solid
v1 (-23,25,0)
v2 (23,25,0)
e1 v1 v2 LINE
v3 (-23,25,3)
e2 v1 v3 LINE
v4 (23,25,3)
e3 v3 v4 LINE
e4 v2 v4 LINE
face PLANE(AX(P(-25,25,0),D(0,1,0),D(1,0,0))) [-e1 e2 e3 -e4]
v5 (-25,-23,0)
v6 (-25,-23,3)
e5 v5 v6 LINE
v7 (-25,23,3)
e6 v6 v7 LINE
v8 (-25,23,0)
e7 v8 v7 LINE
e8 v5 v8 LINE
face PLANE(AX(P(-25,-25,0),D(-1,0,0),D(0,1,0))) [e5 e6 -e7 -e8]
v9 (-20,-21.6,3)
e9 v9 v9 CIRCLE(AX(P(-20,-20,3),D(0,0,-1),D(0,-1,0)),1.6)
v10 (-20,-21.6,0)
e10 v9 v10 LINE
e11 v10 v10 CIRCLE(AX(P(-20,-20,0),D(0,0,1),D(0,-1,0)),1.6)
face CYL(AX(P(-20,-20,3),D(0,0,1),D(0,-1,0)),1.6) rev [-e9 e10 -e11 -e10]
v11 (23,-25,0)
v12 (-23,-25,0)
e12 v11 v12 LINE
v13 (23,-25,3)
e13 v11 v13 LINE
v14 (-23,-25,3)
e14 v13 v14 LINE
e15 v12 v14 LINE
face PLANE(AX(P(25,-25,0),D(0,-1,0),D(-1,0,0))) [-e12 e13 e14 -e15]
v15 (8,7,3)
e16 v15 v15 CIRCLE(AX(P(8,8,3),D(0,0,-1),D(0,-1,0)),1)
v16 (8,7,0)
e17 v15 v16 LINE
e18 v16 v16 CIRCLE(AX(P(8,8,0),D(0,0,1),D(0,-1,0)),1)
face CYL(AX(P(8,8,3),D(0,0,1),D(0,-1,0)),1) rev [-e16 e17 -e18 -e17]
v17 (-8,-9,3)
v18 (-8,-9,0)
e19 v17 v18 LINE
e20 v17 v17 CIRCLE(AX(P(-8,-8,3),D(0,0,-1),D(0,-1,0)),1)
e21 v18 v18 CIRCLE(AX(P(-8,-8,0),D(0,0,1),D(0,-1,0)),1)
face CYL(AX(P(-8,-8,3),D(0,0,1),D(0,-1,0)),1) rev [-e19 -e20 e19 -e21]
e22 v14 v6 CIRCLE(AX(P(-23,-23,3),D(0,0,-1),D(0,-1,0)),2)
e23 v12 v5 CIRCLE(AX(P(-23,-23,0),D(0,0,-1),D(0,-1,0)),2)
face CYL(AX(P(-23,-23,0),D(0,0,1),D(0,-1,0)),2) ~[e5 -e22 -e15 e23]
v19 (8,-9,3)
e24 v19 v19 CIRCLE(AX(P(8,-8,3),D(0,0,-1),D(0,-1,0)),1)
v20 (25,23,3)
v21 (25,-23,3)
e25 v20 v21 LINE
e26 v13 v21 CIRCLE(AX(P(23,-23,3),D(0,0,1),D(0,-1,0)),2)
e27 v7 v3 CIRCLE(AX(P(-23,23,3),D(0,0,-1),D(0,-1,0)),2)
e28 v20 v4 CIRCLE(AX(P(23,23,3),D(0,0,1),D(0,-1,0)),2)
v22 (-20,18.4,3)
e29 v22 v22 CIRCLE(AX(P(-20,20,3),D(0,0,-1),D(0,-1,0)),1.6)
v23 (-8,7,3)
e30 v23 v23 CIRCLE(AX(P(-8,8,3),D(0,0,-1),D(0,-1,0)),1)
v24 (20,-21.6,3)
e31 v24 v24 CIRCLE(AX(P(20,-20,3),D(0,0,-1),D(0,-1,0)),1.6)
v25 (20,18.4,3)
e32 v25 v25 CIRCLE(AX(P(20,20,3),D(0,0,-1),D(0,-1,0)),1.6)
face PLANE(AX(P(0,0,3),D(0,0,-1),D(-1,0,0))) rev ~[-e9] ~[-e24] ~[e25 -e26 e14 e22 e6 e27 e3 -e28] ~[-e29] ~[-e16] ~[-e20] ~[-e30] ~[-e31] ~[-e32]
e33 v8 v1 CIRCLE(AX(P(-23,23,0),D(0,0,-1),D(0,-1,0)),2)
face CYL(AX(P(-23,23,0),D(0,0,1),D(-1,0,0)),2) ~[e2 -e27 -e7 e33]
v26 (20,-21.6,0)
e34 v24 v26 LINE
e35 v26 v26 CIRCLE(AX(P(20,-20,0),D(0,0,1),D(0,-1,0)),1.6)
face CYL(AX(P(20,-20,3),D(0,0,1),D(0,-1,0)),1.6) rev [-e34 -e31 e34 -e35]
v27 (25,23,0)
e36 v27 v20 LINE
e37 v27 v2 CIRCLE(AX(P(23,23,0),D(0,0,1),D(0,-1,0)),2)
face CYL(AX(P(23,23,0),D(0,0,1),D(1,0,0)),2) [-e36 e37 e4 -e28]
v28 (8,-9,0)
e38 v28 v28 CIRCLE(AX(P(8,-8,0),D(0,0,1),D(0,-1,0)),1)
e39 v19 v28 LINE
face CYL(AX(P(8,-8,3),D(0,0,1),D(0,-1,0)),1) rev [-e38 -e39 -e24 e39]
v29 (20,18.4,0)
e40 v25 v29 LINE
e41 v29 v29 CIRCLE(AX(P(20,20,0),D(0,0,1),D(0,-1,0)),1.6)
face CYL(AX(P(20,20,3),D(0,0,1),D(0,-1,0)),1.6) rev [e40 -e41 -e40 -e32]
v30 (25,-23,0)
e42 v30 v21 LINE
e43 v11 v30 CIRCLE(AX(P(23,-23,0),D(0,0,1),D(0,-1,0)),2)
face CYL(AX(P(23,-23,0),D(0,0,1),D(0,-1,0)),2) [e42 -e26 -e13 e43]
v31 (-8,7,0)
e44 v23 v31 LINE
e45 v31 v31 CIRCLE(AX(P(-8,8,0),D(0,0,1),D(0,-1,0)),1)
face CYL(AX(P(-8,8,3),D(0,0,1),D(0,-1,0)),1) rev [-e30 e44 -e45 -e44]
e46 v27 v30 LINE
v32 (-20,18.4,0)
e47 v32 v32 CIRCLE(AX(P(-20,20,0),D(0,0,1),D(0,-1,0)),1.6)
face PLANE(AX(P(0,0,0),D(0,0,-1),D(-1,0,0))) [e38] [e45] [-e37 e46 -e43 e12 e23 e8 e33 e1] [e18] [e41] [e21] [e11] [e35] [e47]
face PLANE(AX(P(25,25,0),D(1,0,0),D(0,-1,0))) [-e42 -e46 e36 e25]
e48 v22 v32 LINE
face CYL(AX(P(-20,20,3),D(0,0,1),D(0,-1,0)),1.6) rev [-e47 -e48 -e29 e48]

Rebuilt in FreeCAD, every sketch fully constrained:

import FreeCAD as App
import Part
import Sketcher


def edges_at(feature, points):
    """Names of the edges that pass closest to the given points."""
    edges = feature.Shape.Edges
    near = lambda p: min(range(len(edges)), key=lambda i: edges[i].distToShape(Part.Vertex(*p))[0])
    return sorted({f"Edge{near(p) + 1}" for p in points})

doc = App.newDocument("Part")
body = doc.addObject("PartDesign::Body", "Body")

sketch1 = doc.addObject("Sketcher::SketchObject", "Sketch")
body.addObject(sketch1)
sketch1.AttachmentSupport = (doc.XY_Plane, [""])
sketch1.MapMode = "FlatFace"
sketch1.addGeometry([
    Part.LineSegment(App.Vector(-25, -25, 0), App.Vector(25, -25, 0)),
    Part.LineSegment(App.Vector(25, -25, 0), App.Vector(25, 25, 0)),
    Part.LineSegment(App.Vector(25, 25, 0), App.Vector(-25, 25, 0)),
    Part.LineSegment(App.Vector(-25, 25, 0), App.Vector(-25, -25, 0)),
], False)
sketch1.addConstraint([
    Sketcher.Constraint("Coincident", 0, 2, 1, 1),
    Sketcher.Constraint("Coincident", 1, 2, 2, 1),
    Sketcher.Constraint("Coincident", 2, 2, 3, 1),
    Sketcher.Constraint("Coincident", 3, 2, 0, 1),
    Sketcher.Constraint("Horizontal", 0),
    Sketcher.Constraint("Vertical", 1),
    Sketcher.Constraint("Horizontal", 2),
    Sketcher.Constraint("Vertical", 3),
    Sketcher.Constraint("Symmetric", 0, 2, 2, 2, -1, 1),
    Sketcher.Constraint("Equal", 2, 1),
    Sketcher.Constraint("DistanceX", -1, 1, 0, 2, 25.0),
])
pad1 = doc.addObject("PartDesign::Pad", "Pad")
body.addObject(pad1)
pad1.Profile = sketch1
pad1.Length = 3

sketch2 = doc.addObject("Sketcher::SketchObject", "Sketch001")
body.addObject(sketch2)
sketch2.AttachmentSupport = (doc.XY_Plane, [""])
sketch2.MapMode = "FlatFace"
sketch2.AttachmentOffset = App.Placement(App.Vector(0, 0, 3), App.Rotation())
sketch2.addGeometry(Part.Circle(App.Vector(-8, 8, 0), App.Vector(0, 0, 1), 1), False)
sketch2.addConstraint([
    Sketcher.Constraint("Diameter", 0, 2.0),
    Sketcher.Constraint("DistanceX", 0, 3, -1, 1, 8.0),
    Sketcher.Constraint("DistanceY", -1, 1, 0, 3, 8.0),
])
doc.recompute()
hole = doc.addObject("PartDesign::Hole", "Hole")
body.addObject(hole)
hole.Profile = sketch2
hole.ThreadType = "None"
hole.Diameter = 2
hole.DepthType = "ThroughAll"

sketch3 = doc.addObject("Sketcher::SketchObject", "Sketch002")
body.addObject(sketch3)
sketch3.AttachmentSupport = (doc.XY_Plane, [""])
sketch3.MapMode = "FlatFace"
sketch3.AttachmentOffset = App.Placement(App.Vector(0, 0, 3), App.Rotation())
sketch3.addGeometry(Part.Circle(App.Vector(-8, -8, 0), App.Vector(0, 0, 1), 1), False)
sketch3.addConstraint([
    Sketcher.Constraint("Diameter", 0, 2.0),
    Sketcher.Constraint("DistanceX", 0, 3, -1, 1, 8.0),
    Sketcher.Constraint("DistanceY", 0, 3, -1, 1, 8.0),
])
doc.recompute()
hole2 = doc.addObject("PartDesign::Hole", "Hole001")
body.addObject(hole2)
hole2.Profile = sketch3
hole2.ThreadType = "None"
hole2.Diameter = 2
hole2.DepthType = "ThroughAll"

sketch4 = doc.addObject("Sketcher::SketchObject", "Sketch003")
body.addObject(sketch4)
sketch4.AttachmentSupport = (doc.XY_Plane, [""])
sketch4.MapMode = "FlatFace"
sketch4.AttachmentOffset = App.Placement(App.Vector(0, 0, 3), App.Rotation())
sketch4.addGeometry(Part.Circle(App.Vector(8, -8, 0), App.Vector(0, 0, 1), 1), False)
sketch4.addConstraint([
    Sketcher.Constraint("Diameter", 0, 2.0),
    Sketcher.Constraint("DistanceX", -1, 1, 0, 3, 8.0),
    Sketcher.Constraint("DistanceY", 0, 3, -1, 1, 8.0),
])
doc.recompute()
hole3 = doc.addObject("PartDesign::Hole", "Hole002")
body.addObject(hole3)
hole3.Profile = sketch4
hole3.ThreadType = "None"
hole3.Diameter = 2
hole3.DepthType = "ThroughAll"

sketch5 = doc.addObject("Sketcher::SketchObject", "Sketch004")
body.addObject(sketch5)
sketch5.AttachmentSupport = (doc.XY_Plane, [""])
sketch5.MapMode = "FlatFace"
sketch5.AttachmentOffset = App.Placement(App.Vector(0, 0, 3), App.Rotation())
sketch5.addGeometry(Part.Circle(App.Vector(8, 8, 0), App.Vector(0, 0, 1), 1), False)
sketch5.addConstraint([
    Sketcher.Constraint("Diameter", 0, 2.0),
    Sketcher.Constraint("DistanceX", -1, 1, 0, 3, 8.0),
    Sketcher.Constraint("DistanceY", -1, 1, 0, 3, 8.0),
])
doc.recompute()
hole4 = doc.addObject("PartDesign::Hole", "Hole003")
body.addObject(hole4)
hole4.Profile = sketch5
hole4.ThreadType = "None"
hole4.Diameter = 2
hole4.DepthType = "ThroughAll"

sketch6 = doc.addObject("Sketcher::SketchObject", "Sketch005")
body.addObject(sketch6)
sketch6.AttachmentSupport = (doc.XY_Plane, [""])
sketch6.MapMode = "FlatFace"
sketch6.AttachmentOffset = App.Placement(App.Vector(0, 0, 3), App.Rotation())
sketch6.addGeometry(Part.Circle(App.Vector(20, 20, 0), App.Vector(0, 0, 1), 1.6), False)
sketch6.addConstraint([
    Sketcher.Constraint("Diameter", 0, 3.2),
    Sketcher.Constraint("DistanceX", -1, 1, 0, 3, 20.0),
    Sketcher.Constraint("DistanceY", -1, 1, 0, 3, 20.0),
])
doc.recompute()
hole5 = doc.addObject("PartDesign::Hole", "Hole004")
body.addObject(hole5)
hole5.Profile = sketch6
hole5.ThreadType = "None"
hole5.Diameter = 3.2
hole5.DepthType = "ThroughAll"

sketch7 = doc.addObject("Sketcher::SketchObject", "Sketch006")
body.addObject(sketch7)
sketch7.AttachmentSupport = (doc.XY_Plane, [""])
sketch7.MapMode = "FlatFace"
sketch7.AttachmentOffset = App.Placement(App.Vector(0, 0, 3), App.Rotation())
sketch7.addGeometry(Part.Circle(App.Vector(20, -20, 0), App.Vector(0, 0, 1), 1.6), False)
sketch7.addConstraint([
    Sketcher.Constraint("Diameter", 0, 3.2),
    Sketcher.Constraint("DistanceX", -1, 1, 0, 3, 20.0),
    Sketcher.Constraint("DistanceY", 0, 3, -1, 1, 20.0),
])
doc.recompute()
hole6 = doc.addObject("PartDesign::Hole", "Hole005")
body.addObject(hole6)
hole6.Profile = sketch7
hole6.ThreadType = "None"
hole6.Diameter = 3.2
hole6.DepthType = "ThroughAll"

sketch8 = doc.addObject("Sketcher::SketchObject", "Sketch007")
body.addObject(sketch8)
sketch8.AttachmentSupport = (doc.XY_Plane, [""])
sketch8.MapMode = "FlatFace"
sketch8.AttachmentOffset = App.Placement(App.Vector(0, 0, 3), App.Rotation())
sketch8.addGeometry(Part.Circle(App.Vector(-20, -20, 0), App.Vector(0, 0, 1), 1.6), False)
sketch8.addConstraint([
    Sketcher.Constraint("Diameter", 0, 3.2),
    Sketcher.Constraint("DistanceX", 0, 3, -1, 1, 20.0),
    Sketcher.Constraint("DistanceY", 0, 3, -1, 1, 20.0),
])
doc.recompute()
hole7 = doc.addObject("PartDesign::Hole", "Hole006")
body.addObject(hole7)
hole7.Profile = sketch8
hole7.ThreadType = "None"
hole7.Diameter = 3.2
hole7.DepthType = "ThroughAll"

sketch9 = doc.addObject("Sketcher::SketchObject", "Sketch008")
body.addObject(sketch9)
sketch9.AttachmentSupport = (doc.XY_Plane, [""])
sketch9.MapMode = "FlatFace"
sketch9.AttachmentOffset = App.Placement(App.Vector(0, 0, 3), App.Rotation())
sketch9.addGeometry(Part.Circle(App.Vector(-20, 20, 0), App.Vector(0, 0, 1), 1.6), False)
sketch9.addConstraint([
    Sketcher.Constraint("Diameter", 0, 3.2),
    Sketcher.Constraint("DistanceX", 0, 3, -1, 1, 20.0),
    Sketcher.Constraint("DistanceY", -1, 1, 0, 3, 20.0),
])
doc.recompute()
hole8 = doc.addObject("PartDesign::Hole", "Hole007")
body.addObject(hole8)
hole8.Profile = sketch9
hole8.ThreadType = "None"
hole8.Diameter = 3.2
hole8.DepthType = "ThroughAll"
doc.recompute()

fillet = doc.addObject("PartDesign::Fillet", "Fillet")
body.addObject(fillet)
fillet.Base = (hole8, edges_at(hole8, [
    (-25, -25, 1.5),
    (25, -25, 1.5),
    (-25, 25, 1.5),
    (25, 25, 1.5),
]))
fillet.Radius = 2

doc.recompute()
